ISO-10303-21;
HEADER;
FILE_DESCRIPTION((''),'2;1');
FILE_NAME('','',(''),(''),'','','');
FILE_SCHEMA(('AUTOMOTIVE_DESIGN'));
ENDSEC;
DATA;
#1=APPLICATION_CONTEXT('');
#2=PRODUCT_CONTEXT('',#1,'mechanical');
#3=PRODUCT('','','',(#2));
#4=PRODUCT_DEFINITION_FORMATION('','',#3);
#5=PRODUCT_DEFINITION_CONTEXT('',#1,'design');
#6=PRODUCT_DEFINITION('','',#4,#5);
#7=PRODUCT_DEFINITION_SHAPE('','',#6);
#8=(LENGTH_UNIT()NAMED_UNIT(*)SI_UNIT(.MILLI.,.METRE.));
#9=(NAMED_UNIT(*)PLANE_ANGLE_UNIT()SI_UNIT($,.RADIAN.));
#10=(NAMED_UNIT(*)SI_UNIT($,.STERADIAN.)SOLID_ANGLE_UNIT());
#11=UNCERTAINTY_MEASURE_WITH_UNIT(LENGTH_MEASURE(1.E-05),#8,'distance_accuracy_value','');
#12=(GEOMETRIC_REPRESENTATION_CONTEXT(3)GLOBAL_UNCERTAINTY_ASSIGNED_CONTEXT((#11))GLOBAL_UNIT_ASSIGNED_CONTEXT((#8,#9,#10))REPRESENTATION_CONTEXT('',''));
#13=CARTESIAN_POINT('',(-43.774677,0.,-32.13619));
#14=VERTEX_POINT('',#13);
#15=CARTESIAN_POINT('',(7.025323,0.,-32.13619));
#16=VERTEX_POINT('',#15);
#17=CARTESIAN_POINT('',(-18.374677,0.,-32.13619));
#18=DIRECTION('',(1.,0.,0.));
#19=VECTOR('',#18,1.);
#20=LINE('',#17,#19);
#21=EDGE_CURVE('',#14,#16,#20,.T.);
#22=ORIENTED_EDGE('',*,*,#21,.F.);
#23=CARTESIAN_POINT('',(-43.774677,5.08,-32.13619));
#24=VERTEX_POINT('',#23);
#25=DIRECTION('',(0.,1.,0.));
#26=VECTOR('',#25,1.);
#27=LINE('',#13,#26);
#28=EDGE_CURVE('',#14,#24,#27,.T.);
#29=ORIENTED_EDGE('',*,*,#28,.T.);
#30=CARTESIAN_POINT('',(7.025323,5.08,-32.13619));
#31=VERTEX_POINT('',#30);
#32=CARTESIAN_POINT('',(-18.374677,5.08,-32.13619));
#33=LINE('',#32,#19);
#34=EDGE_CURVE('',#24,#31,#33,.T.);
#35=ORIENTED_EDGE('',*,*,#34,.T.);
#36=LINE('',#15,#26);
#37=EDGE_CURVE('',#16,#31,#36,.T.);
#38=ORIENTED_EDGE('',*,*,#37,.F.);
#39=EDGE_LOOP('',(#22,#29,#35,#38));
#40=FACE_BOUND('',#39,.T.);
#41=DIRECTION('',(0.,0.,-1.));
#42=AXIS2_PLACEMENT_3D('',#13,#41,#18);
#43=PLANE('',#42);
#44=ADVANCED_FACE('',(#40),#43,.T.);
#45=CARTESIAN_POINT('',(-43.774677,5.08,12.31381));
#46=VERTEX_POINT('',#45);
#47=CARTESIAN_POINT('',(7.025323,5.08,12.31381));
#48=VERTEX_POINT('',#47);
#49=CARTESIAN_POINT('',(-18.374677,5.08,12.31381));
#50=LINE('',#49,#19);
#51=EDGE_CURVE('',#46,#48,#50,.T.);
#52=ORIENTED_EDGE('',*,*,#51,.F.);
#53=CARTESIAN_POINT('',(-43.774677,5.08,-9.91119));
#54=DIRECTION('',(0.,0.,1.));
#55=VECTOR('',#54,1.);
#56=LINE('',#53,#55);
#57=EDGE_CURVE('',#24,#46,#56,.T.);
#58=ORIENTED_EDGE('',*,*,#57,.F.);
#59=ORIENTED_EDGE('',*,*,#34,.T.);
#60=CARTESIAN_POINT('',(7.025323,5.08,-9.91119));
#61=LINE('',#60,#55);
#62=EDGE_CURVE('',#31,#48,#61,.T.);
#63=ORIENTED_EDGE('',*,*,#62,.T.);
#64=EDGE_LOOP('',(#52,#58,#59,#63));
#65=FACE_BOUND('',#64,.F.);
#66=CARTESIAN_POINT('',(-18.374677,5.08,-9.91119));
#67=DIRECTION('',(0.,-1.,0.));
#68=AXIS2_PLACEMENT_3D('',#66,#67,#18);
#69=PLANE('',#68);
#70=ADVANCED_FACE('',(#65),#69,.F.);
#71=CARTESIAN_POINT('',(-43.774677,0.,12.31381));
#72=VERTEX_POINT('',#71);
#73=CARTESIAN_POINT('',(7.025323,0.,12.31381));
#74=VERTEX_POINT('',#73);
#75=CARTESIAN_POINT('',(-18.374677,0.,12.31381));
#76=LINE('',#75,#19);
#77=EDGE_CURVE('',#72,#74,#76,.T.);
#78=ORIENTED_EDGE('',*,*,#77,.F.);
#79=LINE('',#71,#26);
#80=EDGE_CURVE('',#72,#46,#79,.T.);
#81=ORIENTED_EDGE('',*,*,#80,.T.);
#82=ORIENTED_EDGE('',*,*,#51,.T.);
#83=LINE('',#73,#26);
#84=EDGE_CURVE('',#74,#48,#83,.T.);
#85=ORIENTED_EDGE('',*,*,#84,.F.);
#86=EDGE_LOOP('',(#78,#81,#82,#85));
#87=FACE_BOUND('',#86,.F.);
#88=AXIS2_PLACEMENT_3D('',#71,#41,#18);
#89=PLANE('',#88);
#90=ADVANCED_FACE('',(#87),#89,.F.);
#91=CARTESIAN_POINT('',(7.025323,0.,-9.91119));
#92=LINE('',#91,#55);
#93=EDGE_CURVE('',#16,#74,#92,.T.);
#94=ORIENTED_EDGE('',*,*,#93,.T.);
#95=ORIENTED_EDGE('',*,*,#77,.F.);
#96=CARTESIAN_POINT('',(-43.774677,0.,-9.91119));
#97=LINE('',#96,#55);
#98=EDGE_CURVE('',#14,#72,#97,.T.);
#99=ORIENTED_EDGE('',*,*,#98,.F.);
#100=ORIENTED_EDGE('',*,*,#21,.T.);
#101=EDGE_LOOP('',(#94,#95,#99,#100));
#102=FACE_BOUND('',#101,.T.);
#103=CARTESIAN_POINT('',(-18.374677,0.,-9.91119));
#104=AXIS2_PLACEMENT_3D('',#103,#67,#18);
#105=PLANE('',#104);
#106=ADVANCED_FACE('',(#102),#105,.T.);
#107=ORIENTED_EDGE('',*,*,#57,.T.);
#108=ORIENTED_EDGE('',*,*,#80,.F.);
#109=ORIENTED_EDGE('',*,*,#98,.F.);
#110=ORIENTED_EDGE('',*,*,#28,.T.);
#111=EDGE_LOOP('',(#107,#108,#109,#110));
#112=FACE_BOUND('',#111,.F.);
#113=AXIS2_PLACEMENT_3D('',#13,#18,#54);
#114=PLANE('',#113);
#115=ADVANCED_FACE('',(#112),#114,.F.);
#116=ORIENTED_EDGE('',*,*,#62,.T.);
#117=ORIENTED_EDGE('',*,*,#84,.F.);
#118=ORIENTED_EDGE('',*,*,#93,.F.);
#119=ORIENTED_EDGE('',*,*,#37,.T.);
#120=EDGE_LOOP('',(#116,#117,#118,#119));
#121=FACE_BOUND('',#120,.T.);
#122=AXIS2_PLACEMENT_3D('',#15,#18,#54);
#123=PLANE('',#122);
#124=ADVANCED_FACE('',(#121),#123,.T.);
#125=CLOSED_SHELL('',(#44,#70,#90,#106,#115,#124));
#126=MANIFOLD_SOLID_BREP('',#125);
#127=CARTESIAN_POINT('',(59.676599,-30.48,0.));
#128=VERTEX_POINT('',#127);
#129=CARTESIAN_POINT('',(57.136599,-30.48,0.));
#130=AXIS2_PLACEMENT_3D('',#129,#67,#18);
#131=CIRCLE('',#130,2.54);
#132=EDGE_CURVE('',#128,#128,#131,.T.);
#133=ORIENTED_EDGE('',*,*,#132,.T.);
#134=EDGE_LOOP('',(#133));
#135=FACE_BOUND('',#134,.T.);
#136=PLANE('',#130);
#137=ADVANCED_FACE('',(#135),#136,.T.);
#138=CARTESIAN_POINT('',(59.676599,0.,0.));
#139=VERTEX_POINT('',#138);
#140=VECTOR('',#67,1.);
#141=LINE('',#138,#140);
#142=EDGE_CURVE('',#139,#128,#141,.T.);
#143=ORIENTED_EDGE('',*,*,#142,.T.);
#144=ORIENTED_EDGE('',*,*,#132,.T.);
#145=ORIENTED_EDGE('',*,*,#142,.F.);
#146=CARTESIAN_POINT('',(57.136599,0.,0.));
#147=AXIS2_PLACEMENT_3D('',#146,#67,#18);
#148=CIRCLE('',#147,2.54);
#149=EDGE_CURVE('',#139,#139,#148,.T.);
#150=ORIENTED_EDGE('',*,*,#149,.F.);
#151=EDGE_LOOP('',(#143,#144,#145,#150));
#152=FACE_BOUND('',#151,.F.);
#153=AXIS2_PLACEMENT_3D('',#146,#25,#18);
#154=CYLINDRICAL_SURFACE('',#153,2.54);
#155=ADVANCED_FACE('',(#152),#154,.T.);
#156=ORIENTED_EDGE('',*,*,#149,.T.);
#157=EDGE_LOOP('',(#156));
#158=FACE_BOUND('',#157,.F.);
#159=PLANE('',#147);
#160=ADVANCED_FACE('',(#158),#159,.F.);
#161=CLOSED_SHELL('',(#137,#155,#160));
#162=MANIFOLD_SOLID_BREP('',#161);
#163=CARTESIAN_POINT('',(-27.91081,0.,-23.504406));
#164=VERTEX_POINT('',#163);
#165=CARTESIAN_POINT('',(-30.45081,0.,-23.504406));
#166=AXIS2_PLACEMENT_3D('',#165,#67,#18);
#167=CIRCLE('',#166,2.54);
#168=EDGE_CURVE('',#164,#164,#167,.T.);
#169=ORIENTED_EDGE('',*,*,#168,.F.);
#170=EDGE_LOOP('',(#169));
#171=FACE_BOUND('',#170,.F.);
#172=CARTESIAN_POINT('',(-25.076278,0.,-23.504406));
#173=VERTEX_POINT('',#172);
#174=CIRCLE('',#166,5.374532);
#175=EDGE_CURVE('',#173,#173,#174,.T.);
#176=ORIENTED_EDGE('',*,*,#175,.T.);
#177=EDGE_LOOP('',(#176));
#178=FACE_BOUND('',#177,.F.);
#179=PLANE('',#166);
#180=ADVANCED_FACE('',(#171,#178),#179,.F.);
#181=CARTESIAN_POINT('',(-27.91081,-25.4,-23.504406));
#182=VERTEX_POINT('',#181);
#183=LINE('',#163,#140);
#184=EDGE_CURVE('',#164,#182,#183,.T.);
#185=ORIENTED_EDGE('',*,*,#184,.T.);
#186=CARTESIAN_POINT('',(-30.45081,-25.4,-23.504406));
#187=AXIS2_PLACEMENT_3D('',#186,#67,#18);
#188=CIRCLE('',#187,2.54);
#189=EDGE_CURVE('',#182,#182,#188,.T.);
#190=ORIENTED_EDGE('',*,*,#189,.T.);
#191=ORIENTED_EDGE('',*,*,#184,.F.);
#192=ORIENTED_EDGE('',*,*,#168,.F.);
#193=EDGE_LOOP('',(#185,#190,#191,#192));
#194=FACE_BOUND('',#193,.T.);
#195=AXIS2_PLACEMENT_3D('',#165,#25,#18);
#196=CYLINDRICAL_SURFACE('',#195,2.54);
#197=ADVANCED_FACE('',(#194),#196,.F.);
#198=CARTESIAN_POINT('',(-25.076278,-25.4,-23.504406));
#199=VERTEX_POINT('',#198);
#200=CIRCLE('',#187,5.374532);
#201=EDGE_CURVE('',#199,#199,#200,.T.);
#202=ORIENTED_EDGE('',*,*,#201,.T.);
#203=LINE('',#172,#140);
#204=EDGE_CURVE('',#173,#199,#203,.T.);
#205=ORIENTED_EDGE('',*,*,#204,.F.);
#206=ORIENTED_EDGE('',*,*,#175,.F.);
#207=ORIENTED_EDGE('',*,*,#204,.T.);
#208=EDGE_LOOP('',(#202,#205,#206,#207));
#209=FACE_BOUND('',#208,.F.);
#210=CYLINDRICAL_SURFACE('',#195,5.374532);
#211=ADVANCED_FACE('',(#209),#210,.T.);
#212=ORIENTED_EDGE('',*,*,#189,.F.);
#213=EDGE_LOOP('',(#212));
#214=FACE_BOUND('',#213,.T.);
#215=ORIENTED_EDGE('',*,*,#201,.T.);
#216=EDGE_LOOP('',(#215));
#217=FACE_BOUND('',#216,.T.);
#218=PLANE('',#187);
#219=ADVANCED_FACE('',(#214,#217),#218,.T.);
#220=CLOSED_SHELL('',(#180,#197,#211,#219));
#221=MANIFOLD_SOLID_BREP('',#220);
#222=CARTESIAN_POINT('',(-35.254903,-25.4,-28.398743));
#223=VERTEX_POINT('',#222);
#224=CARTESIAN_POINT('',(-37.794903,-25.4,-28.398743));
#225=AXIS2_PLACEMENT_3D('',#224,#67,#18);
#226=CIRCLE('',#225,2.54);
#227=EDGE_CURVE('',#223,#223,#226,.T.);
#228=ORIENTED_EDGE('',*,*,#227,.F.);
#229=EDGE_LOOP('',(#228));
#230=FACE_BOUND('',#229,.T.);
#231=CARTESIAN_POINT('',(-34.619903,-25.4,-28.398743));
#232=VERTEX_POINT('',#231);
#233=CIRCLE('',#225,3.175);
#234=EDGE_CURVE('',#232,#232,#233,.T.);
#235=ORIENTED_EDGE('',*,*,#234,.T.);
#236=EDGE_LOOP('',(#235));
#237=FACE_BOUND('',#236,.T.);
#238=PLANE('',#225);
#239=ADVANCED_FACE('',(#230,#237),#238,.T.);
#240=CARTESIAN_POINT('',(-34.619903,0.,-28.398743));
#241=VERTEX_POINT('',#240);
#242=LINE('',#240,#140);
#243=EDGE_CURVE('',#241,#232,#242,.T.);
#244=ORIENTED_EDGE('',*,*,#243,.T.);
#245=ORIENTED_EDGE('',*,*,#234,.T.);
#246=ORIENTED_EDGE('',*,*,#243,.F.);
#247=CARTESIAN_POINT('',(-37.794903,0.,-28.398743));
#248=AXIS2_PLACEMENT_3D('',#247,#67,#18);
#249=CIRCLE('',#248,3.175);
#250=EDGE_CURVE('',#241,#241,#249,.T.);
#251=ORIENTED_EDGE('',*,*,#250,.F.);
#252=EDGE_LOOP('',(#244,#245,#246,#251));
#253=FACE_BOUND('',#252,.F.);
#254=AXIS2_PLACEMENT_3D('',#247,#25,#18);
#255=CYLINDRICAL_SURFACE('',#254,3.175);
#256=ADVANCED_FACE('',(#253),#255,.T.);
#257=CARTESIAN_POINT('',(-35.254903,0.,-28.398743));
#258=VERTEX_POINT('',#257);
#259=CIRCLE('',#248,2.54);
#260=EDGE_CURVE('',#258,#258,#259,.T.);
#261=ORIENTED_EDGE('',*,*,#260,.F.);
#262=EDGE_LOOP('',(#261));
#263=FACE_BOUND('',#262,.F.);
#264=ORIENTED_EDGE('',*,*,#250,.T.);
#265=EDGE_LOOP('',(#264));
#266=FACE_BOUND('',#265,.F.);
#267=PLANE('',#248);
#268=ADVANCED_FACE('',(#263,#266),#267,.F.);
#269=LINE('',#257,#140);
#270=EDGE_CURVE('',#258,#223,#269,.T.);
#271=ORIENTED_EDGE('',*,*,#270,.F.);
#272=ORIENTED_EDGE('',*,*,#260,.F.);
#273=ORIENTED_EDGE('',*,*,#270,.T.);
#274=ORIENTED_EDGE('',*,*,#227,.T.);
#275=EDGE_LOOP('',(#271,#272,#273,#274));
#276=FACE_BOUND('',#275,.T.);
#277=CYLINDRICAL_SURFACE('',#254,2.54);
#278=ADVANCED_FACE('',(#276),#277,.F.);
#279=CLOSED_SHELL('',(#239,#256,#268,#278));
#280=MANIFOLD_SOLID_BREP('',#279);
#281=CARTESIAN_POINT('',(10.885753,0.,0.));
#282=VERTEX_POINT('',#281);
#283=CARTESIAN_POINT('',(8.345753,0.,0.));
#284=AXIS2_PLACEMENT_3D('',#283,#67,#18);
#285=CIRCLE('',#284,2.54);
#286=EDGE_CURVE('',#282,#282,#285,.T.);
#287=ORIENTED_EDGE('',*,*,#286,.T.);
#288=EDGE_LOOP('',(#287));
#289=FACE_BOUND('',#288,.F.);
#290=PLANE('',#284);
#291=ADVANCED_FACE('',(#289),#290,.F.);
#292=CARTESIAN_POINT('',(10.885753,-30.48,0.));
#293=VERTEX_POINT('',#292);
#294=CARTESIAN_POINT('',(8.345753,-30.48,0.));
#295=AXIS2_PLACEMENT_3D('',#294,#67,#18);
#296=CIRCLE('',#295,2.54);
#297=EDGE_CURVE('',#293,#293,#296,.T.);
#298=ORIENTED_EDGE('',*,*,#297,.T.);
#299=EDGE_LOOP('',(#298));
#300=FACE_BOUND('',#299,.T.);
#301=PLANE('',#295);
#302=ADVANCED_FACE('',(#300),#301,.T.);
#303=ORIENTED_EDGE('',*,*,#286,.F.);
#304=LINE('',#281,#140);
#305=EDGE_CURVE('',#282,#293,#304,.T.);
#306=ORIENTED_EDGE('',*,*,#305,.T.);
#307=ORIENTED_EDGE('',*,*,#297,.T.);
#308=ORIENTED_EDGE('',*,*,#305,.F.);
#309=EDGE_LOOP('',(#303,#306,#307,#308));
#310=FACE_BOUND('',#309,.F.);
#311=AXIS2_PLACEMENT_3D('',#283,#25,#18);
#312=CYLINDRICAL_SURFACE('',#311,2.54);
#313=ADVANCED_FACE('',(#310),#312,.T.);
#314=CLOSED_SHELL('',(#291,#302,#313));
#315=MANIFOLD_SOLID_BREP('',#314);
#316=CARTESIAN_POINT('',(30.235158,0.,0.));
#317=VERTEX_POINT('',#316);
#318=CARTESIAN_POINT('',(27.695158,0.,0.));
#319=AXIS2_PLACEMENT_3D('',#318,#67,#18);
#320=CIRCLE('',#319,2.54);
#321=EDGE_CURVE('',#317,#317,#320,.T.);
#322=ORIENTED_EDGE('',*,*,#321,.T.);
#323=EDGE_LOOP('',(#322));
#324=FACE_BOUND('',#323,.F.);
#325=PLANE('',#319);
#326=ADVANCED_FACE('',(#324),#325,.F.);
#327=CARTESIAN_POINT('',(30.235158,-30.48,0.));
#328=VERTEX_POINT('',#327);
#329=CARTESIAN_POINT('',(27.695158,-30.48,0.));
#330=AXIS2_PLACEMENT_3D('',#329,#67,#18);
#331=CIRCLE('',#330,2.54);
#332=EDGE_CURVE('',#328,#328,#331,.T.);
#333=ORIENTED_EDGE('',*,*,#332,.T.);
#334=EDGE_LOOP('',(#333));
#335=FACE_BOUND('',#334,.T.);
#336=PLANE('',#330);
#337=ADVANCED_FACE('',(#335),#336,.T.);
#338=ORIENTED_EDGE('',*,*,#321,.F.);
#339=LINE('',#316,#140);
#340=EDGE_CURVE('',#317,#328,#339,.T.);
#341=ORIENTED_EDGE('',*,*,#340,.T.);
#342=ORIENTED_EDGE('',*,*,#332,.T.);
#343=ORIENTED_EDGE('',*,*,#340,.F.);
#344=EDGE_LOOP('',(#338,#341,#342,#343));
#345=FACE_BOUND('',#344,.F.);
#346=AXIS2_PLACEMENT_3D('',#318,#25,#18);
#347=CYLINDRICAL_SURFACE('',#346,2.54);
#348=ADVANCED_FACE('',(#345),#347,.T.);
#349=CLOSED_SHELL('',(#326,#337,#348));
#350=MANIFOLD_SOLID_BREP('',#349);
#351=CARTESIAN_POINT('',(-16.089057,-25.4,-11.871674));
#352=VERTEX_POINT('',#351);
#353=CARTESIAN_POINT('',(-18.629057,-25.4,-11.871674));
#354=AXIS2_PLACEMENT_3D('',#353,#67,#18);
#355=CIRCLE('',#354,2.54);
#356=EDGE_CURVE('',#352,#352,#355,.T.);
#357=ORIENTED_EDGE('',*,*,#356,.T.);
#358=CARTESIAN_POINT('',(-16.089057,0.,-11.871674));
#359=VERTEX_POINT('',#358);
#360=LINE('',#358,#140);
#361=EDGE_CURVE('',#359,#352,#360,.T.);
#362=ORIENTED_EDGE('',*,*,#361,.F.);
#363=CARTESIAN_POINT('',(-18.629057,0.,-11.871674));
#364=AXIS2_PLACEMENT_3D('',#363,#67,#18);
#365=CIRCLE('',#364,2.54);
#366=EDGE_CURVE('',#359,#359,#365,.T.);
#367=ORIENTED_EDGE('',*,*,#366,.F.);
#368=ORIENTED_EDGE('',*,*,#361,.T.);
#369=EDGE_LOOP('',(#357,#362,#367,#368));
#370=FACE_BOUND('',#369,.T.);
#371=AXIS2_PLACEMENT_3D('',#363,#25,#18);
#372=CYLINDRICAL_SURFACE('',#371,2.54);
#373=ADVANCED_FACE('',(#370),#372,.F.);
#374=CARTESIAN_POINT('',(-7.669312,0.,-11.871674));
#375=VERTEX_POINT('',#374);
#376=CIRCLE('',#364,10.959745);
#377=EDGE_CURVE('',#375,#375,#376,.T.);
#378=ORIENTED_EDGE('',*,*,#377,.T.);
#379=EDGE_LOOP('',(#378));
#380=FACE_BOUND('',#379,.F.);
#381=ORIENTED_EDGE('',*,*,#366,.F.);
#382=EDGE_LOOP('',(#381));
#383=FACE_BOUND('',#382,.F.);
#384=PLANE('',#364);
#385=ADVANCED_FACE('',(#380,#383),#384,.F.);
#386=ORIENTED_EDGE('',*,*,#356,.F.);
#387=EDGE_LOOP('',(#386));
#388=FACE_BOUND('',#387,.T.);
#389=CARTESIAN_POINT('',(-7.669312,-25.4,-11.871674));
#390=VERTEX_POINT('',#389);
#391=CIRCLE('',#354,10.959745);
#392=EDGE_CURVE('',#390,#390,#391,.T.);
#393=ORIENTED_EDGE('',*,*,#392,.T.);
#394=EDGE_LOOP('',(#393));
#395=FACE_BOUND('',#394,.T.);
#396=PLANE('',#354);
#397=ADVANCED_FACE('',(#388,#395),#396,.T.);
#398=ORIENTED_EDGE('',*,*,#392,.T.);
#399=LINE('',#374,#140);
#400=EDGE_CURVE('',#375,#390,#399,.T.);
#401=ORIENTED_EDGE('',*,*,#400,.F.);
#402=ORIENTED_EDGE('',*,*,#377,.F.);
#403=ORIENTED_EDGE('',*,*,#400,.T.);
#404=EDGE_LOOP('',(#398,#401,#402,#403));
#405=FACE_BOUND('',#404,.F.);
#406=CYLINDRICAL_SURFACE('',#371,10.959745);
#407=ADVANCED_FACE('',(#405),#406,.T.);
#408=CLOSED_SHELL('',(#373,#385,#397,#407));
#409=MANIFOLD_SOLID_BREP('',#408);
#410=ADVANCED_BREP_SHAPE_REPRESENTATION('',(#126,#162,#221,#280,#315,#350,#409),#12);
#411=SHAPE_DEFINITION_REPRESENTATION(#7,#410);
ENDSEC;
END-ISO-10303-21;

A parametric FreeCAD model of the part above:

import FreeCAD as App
import Part
import Sketcher
Q = App.Units.Quantity


def add_polygon(sketch, points):
    """Adds a closed chain of lines whose ends are joined by coincident constraints."""
    first, n = sketch.GeometryCount, len(points)
    for a, b in zip(points, points[1:] + points[:1]):
        sketch.addGeometry(Part.LineSegment(App.Vector(*a, 0), App.Vector(*b, 0)), False)
    for i in range(n):
        sketch.addConstraint(Sketcher.Constraint("Coincident", first + i, 2, first + (i + 1) % n, 1))

doc = App.newDocument("Part")
body = doc.addObject("PartDesign::Body", "Body")

sketch1 = body.newObject("Sketcher::SketchObject", "Sketch")
sketch1.AttachmentSupport = (doc.getObject("XZ_Plane"), [""])
sketch1.MapMode = "FlatFace"
sketch1.addGeometry([
    Part.Circle(App.Vector(-18.6, -11.9, 0), App.Vector(0, 0, 1), 11),
    Part.Circle(App.Vector(-18.6, -11.9, 0), App.Vector(0, 0, 1), 2.5),
], False)
sketch1.addConstraint([
    Sketcher.Constraint("Coincident", 1, 3, 0, 3),
    Sketcher.Constraint("Diameter", 1, Q("0.2 in")),
    Sketcher.Constraint("Diameter", 0, 21.91949),
    Sketcher.Constraint("DistanceX", 0, 3, -1, 1, 18.629057),
    Sketcher.Constraint("DistanceY", 0, 3, -1, 1, 11.871674),
])
pad1 = body.newObject("PartDesign::Pad", "Pad")
pad1.Profile = sketch1
pad1.Length = Q("1 in")
body2 = doc.addObject("PartDesign::Body", "Body001")

sketch2 = body2.newObject("Sketcher::SketchObject", "Sketch001")
sketch2.AttachmentSupport = (doc.getObject("XZ_Plane001"), [""])
sketch2.MapMode = "FlatFace"
sketch2.addGeometry([
    Part.Circle(App.Vector(-30.5, -23.5, 0), App.Vector(0, 0, 1), 5.4),
    Part.Circle(App.Vector(-30.5, -23.5, 0), App.Vector(0, 0, 1), 2.5),
], False)
sketch2.addConstraint([
    Sketcher.Constraint("Coincident", 1, 3, 0, 3),
    Sketcher.Constraint("Diameter", 1, Q("0.2 in")),
    Sketcher.Constraint("Diameter", 0, 10.749064),
    Sketcher.Constraint("DistanceX", 0, 3, -1, 1, 30.45081),
    Sketcher.Constraint("DistanceY", 0, 3, -1, 1, 23.504406),
])
pad2 = body2.newObject("PartDesign::Pad", "Pad001")
pad2.Profile = sketch2
pad2.Length = Q("1 in")
body3 = doc.addObject("PartDesign::Body", "Body002")

sketch3 = body3.newObject("Sketcher::SketchObject", "Sketch002")
sketch3.AttachmentSupport = (doc.getObject("XZ_Plane002"), [""])
sketch3.MapMode = "FlatFace"
sketch3.addGeometry([
    Part.Circle(App.Vector(-37.8, -28.4, 0), App.Vector(0, 0, 1), 3.2),
    Part.Circle(App.Vector(-37.8, -28.4, 0), App.Vector(0, 0, 1), 2.5),
], False)
sketch3.addConstraint([
    Sketcher.Constraint("Coincident", 1, 3, 0, 3),
    Sketcher.Constraint("Diameter", 1, Q("0.2 in")),
    Sketcher.Constraint("Diameter", 0, Q("0.25 in")),
    Sketcher.Constraint("DistanceX", 0, 3, -1, 1, 37.794903),
    Sketcher.Constraint("DistanceY", 0, 3, -1, 1, 28.398743),
])
pad3 = body3.newObject("PartDesign::Pad", "Pad002")
pad3.Profile = sketch3
pad3.Length = Q("1 in")
body4 = doc.addObject("PartDesign::Body", "Body003")

sketch4 = body4.newObject("Sketcher::SketchObject", "Sketch003")
sketch4.AttachmentSupport = (doc.getObject("XZ_Plane003"), [""])
sketch4.MapMode = "FlatFace"
add_polygon(sketch4, [(-44, 12), (-44, -32), (7, -32), (7, 12)])
sketch4.addConstraint([
    Sketcher.Constraint("Vertical", 0),
    Sketcher.Constraint("Horizontal", 1),
    Sketcher.Constraint("Vertical", 2),
    Sketcher.Constraint("Horizontal", 3),
    Sketcher.Constraint("DistanceX", 1, 1, 1, 2, Q("2 in")),
    Sketcher.Constraint("DistanceY", 0, 2, 0, 1, Q("1.75 in")),
    Sketcher.Constraint("DistanceY", 0, 2, -1, 1, 32.13619),
    Sketcher.Constraint("DistanceX", 0, 2, -1, 1, 43.774677),
])
pad4 = body4.newObject("PartDesign::Pad", "Pad003")
pad4.Profile = sketch4
pad4.Length = Q("0.2 in")
pad4.Reversed = True
body5 = doc.addObject("PartDesign::Body", "Body004")

sketch5 = body5.newObject("Sketcher::SketchObject", "Sketch004")
sketch5.AttachmentSupport = (doc.getObject("XZ_Plane004"), [""])
sketch5.MapMode = "FlatFace"
sketch5.addGeometry(Part.Circle(App.Vector(8.3, 0, 0), App.Vector(0, 0, 1), 2.5), False)
sketch5.addConstraint([
    Sketcher.Constraint("PointOnObject", 0, 3, -1),
    Sketcher.Constraint("Diameter", 0, Q("0.2 in")),
    Sketcher.Constraint("DistanceX", -1, 1, 0, 3, 8.345753),
])
pad5 = body5.newObject("PartDesign::Pad", "Pad004")
pad5.Profile = sketch5
pad5.Length = Q("1.2 in")
body6 = doc.addObject("PartDesign::Body", "Body005")

sketch6 = body6.newObject("Sketcher::SketchObject", "Sketch005")
sketch6.AttachmentSupport = (doc.getObject("XZ_Plane005"), [""])
sketch6.MapMode = "FlatFace"
sketch6.addGeometry(Part.Circle(App.Vector(27.7, 0, 0), App.Vector(0, 0, 1), 2.5), False)
sketch6.addConstraint([
    Sketcher.Constraint("PointOnObject", 0, 3, -1),
    Sketcher.Constraint("Diameter", 0, Q("0.2 in")),
    Sketcher.Constraint("DistanceX", -1, 1, 0, 3, 27.695158),
])
pad6 = body6.newObject("PartDesign::Pad", "Pad005")
pad6.Profile = sketch6
pad6.Length = Q("1.2 in")
body7 = doc.addObject("PartDesign::Body", "Body006")

sketch7 = body7.newObject("Sketcher::SketchObject", "Sketch006")
sketch7.AttachmentSupport = (doc.getObject("XZ_Plane006"), [""])
sketch7.MapMode = "FlatFace"
sketch7.addGeometry(Part.Circle(App.Vector(57.1, 0, 0), App.Vector(0, 0, 1), 2.5), False)
sketch7.addConstraint([
    Sketcher.Constraint("PointOnObject", 0, 3, -1),
    Sketcher.Constraint("Diameter", 0, Q("0.2 in")),
    Sketcher.Constraint("DistanceX", -1, 1, 0, 3, 57.136599),
])
pad7 = body7.newObject("PartDesign::Pad", "Pad006")
pad7.Profile = sketch7
pad7.Length = Q("1.2 in")

doc.recompute()
